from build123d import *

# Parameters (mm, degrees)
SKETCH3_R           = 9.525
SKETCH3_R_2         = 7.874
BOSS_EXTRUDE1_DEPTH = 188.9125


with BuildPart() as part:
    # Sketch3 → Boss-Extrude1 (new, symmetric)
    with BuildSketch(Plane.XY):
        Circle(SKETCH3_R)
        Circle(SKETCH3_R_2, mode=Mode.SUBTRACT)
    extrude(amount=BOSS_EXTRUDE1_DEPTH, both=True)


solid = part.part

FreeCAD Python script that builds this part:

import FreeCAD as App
import Part
import Sketcher
from FreeCAD import Vector
Q = App.Units.Quantity

doc = App.newDocument("Part")
body = doc.addObject("PartDesign::Body", "Body")

sketch1 = doc.addObject("Sketcher::SketchObject", "Sketch")
body.addObject(sketch1)
sketch1.AttachmentSupport = (doc.XY_Plane, [""])
sketch1.MapMode = "FlatFace"
sketch1.addGeometry(Part.Circle(Vector(0, 0, 0), Vector(0, 0, 1), 10), False)
sketch1.addGeometry(Part.Circle(Vector(0, 0, 0), Vector(0, 0, 1), 8), False)
sketch1.addConstraint(Sketcher.Constraint("Coincident", 0, 3, -1, 1))
sketch1.addConstraint(Sketcher.Constraint("Coincident", 1, 3, -1, 1))
sketch1.addConstraint(Sketcher.Constraint("Diameter", 0, Q("0.75 in")))
sketch1.addConstraint(Sketcher.Constraint("Diameter", 1, Q("0.62 in")))
pad1 = doc.addObject("PartDesign::Pad", "Pad")
body.addObject(pad1)
pad1.Profile = sketch1
pad1.Length = Q("14.875 in")
pad1.Midplane = True

doc.recompute()
